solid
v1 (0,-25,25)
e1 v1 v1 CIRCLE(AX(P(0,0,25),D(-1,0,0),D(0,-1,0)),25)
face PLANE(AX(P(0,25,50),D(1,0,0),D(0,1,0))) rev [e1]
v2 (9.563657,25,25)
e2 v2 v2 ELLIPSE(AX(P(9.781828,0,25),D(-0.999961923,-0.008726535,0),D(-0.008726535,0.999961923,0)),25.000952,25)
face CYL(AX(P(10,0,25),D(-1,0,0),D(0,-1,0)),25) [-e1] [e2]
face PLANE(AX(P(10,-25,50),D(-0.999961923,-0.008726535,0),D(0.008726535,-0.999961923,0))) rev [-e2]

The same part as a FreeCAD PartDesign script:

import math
import FreeCAD as App
import Part
import Sketcher
from FreeCAD import Vector
Q = App.Units.Quantity

doc = App.newDocument("Part")
body = doc.addObject("PartDesign::Body", "Body")

# Sketch on XY plane
sketch1 = doc.addObject("Sketcher::SketchObject", "Sketch")
body.addObject(sketch1)
sketch1.AttachmentSupport = (doc.XY_Plane, [""])
sketch1.MapMode = "FlatFace"
sketch1.addGeometry(Part.LineSegment(Vector(0, 25, 0), Vector(0, -25, 0)), False)
sketch1.addGeometry(Part.LineSegment(Vector(0, -25, 0), Vector(10, -25, 0)), False)
sketch1.addGeometry(Part.LineSegment(Vector(10, -25, 0), Vector(10, 25, 0)), False)
sketch1.addGeometry(Part.LineSegment(Vector(10, 25, 0), Vector(0, 25, 0)), False)
sketch1.addConstraint(Sketcher.Constraint("Coincident", 0, 2, 1, 1))
sketch1.addConstraint(Sketcher.Constraint("Coincident", 1, 2, 2, 1))
sketch1.addConstraint(Sketcher.Constraint("Coincident", 2, 2, 3, 1))
sketch1.addConstraint(Sketcher.Constraint("Coincident", 3, 2, 0, 1))
sketch1.addConstraint(Sketcher.Constraint("Vertical", 0))
sketch1.addConstraint(Sketcher.Constraint("Horizontal", 1))
sketch1.addConstraint(Sketcher.Constraint("Horizontal", 3))
sketch1.addConstraint(Sketcher.Constraint("Symmetric", 0, 2, 3, 2, -1, 1))
sketch1.addConstraint(Sketcher.Constraint("DistanceX", 1, 1, 1, 2, Q("10 mm")))
sketch1.addConstraint(Sketcher.Constraint("DistanceY", 0, 2, 0, 1, Q("50 mm")))
sketch1.addConstraint(Sketcher.Constraint("Angle", 2, Q("90.5 deg")))
pad1 = doc.addObject("PartDesign::Pad", "Pad")
body.addObject(pad1)
pad1.Profile = sketch1
pad1.Length = 50

# Sketch on YZ plane
sketch2 = doc.addObject("Sketcher::SketchObject", "Sketch001")
body.addObject(sketch2)
sketch2.AttachmentSupport = (doc.YZ_Plane, [""])
sketch2.MapMode = "FlatFace"
sketch2.addGeometry(Part.ArcOfCircle(Part.Circle(Vector(0, 25, 0), Vector(0, 0, 1), 25), math.radians(-180), math.radians(-90)), False)
sketch2.addGeometry(Part.LineSegment(Vector(0, 0, 0), Vector(-25, 0, 0)), False)
sketch2.addGeometry(Part.LineSegment(Vector(-25, 0, 0), Vector(-25, 25, 0)), False)
sketch2.addGeometry(Part.ArcOfCircle(Part.Circle(Vector(0, 25, 0), Vector(0, 0, 1), 25), math.radians(90), math.radians(180)), False)
sketch2.addGeometry(Part.LineSegment(Vector(-25, 25, 0), Vector(-25, 50, 0)), False)
sketch2.addGeometry(Part.LineSegment(Vector(-25, 50, 0), Vector(0, 50, 0)), False)
sketch2.addGeometry(Part.LineSegment(Vector(25, 50, 0), Vector(25, 25, 0)), False)
sketch2.addGeometry(Part.ArcOfCircle(Part.Circle(Vector(0, 25, 0), Vector(0, 0, 1), 25), math.radians(0), math.radians(90)), False)
sketch2.addGeometry(Part.LineSegment(Vector(0, 50, 0), Vector(25, 50, 0)), False)
sketch2.addGeometry(Part.LineSegment(Vector(25, 25, 0), Vector(25, 0, 0)), False)
sketch2.addGeometry(Part.LineSegment(Vector(25, 0, 0), Vector(0, 0, 0)), False)
sketch2.addGeometry(Part.ArcOfCircle(Part.Circle(Vector(0, 25, 0), Vector(0, 0, 1), 25), math.radians(-90), math.radians(0)), False)
sketch2.addConstraint(Sketcher.Constraint("Tangent", 0, 2, 1, 1))
sketch2.addConstraint(Sketcher.Constraint("Coincident", 1, 2, 2, 1))
sketch2.addConstraint(Sketcher.Constraint("Tangent", 2, 2, 0, 1))
sketch2.addConstraint(Sketcher.Constraint("Tangent", 3, 2, 4, 1))
sketch2.addConstraint(Sketcher.Constraint("Coincident", 4, 2, 5, 1))
sketch2.addConstraint(Sketcher.Constraint("Tangent", 5, 2, 3, 1))
sketch2.addConstraint(Sketcher.Constraint("Tangent", 6, 2, 7, 1))
sketch2.addConstraint(Sketcher.Constraint("Tangent", 7, 2, 8, 1))
sketch2.addConstraint(Sketcher.Constraint("Coincident", 8, 2, 6, 1))
sketch2.addConstraint(Sketcher.Constraint("Coincident", 9, 2, 10, 1))
sketch2.addConstraint(Sketcher.Constraint("Tangent", 10, 2, 11, 1))
sketch2.addConstraint(Sketcher.Constraint("Tangent", 11, 2, 9, 1))
sketch2.addConstraint(Sketcher.Constraint("Horizontal", 1))
sketch2.addConstraint(Sketcher.Constraint("Vertical", 2))
sketch2.addConstraint(Sketcher.Constraint("Vertical", 4))
sketch2.addConstraint(Sketcher.Constraint("Horizontal", 5))
sketch2.addConstraint(Sketcher.Constraint("Vertical", 6))
sketch2.addConstraint(Sketcher.Constraint("Horizontal", 8))
sketch2.addConstraint(Sketcher.Constraint("Vertical", 9))
sketch2.addConstraint(Sketcher.Constraint("Horizontal", 10))
sketch2.addConstraint(Sketcher.Constraint("Coincident", 0, 2, -1, 1))
sketch2.addConstraint(Sketcher.Constraint("Coincident", 10, 2, -1, 1))
sketch2.addConstraint(Sketcher.Constraint("Coincident", 3, 3, 0, 3))
sketch2.addConstraint(Sketcher.Constraint("Coincident", 7, 3, 0, 3))
sketch2.addConstraint(Sketcher.Constraint("Coincident", 11, 2, 6, 2))
sketch2.addConstraint(Sketcher.Constraint("Equal", 0, 3))
sketch2.addConstraint(Sketcher.Constraint("Radius", 0, Q("25 mm")))
pocket1 = doc.addObject("PartDesign::Pocket", "Pocket")
body.addObject(pocket1)
pocket1.Profile = sketch2
pocket1.Length = 10
pocket1.Reversed = True

doc.recompute()
